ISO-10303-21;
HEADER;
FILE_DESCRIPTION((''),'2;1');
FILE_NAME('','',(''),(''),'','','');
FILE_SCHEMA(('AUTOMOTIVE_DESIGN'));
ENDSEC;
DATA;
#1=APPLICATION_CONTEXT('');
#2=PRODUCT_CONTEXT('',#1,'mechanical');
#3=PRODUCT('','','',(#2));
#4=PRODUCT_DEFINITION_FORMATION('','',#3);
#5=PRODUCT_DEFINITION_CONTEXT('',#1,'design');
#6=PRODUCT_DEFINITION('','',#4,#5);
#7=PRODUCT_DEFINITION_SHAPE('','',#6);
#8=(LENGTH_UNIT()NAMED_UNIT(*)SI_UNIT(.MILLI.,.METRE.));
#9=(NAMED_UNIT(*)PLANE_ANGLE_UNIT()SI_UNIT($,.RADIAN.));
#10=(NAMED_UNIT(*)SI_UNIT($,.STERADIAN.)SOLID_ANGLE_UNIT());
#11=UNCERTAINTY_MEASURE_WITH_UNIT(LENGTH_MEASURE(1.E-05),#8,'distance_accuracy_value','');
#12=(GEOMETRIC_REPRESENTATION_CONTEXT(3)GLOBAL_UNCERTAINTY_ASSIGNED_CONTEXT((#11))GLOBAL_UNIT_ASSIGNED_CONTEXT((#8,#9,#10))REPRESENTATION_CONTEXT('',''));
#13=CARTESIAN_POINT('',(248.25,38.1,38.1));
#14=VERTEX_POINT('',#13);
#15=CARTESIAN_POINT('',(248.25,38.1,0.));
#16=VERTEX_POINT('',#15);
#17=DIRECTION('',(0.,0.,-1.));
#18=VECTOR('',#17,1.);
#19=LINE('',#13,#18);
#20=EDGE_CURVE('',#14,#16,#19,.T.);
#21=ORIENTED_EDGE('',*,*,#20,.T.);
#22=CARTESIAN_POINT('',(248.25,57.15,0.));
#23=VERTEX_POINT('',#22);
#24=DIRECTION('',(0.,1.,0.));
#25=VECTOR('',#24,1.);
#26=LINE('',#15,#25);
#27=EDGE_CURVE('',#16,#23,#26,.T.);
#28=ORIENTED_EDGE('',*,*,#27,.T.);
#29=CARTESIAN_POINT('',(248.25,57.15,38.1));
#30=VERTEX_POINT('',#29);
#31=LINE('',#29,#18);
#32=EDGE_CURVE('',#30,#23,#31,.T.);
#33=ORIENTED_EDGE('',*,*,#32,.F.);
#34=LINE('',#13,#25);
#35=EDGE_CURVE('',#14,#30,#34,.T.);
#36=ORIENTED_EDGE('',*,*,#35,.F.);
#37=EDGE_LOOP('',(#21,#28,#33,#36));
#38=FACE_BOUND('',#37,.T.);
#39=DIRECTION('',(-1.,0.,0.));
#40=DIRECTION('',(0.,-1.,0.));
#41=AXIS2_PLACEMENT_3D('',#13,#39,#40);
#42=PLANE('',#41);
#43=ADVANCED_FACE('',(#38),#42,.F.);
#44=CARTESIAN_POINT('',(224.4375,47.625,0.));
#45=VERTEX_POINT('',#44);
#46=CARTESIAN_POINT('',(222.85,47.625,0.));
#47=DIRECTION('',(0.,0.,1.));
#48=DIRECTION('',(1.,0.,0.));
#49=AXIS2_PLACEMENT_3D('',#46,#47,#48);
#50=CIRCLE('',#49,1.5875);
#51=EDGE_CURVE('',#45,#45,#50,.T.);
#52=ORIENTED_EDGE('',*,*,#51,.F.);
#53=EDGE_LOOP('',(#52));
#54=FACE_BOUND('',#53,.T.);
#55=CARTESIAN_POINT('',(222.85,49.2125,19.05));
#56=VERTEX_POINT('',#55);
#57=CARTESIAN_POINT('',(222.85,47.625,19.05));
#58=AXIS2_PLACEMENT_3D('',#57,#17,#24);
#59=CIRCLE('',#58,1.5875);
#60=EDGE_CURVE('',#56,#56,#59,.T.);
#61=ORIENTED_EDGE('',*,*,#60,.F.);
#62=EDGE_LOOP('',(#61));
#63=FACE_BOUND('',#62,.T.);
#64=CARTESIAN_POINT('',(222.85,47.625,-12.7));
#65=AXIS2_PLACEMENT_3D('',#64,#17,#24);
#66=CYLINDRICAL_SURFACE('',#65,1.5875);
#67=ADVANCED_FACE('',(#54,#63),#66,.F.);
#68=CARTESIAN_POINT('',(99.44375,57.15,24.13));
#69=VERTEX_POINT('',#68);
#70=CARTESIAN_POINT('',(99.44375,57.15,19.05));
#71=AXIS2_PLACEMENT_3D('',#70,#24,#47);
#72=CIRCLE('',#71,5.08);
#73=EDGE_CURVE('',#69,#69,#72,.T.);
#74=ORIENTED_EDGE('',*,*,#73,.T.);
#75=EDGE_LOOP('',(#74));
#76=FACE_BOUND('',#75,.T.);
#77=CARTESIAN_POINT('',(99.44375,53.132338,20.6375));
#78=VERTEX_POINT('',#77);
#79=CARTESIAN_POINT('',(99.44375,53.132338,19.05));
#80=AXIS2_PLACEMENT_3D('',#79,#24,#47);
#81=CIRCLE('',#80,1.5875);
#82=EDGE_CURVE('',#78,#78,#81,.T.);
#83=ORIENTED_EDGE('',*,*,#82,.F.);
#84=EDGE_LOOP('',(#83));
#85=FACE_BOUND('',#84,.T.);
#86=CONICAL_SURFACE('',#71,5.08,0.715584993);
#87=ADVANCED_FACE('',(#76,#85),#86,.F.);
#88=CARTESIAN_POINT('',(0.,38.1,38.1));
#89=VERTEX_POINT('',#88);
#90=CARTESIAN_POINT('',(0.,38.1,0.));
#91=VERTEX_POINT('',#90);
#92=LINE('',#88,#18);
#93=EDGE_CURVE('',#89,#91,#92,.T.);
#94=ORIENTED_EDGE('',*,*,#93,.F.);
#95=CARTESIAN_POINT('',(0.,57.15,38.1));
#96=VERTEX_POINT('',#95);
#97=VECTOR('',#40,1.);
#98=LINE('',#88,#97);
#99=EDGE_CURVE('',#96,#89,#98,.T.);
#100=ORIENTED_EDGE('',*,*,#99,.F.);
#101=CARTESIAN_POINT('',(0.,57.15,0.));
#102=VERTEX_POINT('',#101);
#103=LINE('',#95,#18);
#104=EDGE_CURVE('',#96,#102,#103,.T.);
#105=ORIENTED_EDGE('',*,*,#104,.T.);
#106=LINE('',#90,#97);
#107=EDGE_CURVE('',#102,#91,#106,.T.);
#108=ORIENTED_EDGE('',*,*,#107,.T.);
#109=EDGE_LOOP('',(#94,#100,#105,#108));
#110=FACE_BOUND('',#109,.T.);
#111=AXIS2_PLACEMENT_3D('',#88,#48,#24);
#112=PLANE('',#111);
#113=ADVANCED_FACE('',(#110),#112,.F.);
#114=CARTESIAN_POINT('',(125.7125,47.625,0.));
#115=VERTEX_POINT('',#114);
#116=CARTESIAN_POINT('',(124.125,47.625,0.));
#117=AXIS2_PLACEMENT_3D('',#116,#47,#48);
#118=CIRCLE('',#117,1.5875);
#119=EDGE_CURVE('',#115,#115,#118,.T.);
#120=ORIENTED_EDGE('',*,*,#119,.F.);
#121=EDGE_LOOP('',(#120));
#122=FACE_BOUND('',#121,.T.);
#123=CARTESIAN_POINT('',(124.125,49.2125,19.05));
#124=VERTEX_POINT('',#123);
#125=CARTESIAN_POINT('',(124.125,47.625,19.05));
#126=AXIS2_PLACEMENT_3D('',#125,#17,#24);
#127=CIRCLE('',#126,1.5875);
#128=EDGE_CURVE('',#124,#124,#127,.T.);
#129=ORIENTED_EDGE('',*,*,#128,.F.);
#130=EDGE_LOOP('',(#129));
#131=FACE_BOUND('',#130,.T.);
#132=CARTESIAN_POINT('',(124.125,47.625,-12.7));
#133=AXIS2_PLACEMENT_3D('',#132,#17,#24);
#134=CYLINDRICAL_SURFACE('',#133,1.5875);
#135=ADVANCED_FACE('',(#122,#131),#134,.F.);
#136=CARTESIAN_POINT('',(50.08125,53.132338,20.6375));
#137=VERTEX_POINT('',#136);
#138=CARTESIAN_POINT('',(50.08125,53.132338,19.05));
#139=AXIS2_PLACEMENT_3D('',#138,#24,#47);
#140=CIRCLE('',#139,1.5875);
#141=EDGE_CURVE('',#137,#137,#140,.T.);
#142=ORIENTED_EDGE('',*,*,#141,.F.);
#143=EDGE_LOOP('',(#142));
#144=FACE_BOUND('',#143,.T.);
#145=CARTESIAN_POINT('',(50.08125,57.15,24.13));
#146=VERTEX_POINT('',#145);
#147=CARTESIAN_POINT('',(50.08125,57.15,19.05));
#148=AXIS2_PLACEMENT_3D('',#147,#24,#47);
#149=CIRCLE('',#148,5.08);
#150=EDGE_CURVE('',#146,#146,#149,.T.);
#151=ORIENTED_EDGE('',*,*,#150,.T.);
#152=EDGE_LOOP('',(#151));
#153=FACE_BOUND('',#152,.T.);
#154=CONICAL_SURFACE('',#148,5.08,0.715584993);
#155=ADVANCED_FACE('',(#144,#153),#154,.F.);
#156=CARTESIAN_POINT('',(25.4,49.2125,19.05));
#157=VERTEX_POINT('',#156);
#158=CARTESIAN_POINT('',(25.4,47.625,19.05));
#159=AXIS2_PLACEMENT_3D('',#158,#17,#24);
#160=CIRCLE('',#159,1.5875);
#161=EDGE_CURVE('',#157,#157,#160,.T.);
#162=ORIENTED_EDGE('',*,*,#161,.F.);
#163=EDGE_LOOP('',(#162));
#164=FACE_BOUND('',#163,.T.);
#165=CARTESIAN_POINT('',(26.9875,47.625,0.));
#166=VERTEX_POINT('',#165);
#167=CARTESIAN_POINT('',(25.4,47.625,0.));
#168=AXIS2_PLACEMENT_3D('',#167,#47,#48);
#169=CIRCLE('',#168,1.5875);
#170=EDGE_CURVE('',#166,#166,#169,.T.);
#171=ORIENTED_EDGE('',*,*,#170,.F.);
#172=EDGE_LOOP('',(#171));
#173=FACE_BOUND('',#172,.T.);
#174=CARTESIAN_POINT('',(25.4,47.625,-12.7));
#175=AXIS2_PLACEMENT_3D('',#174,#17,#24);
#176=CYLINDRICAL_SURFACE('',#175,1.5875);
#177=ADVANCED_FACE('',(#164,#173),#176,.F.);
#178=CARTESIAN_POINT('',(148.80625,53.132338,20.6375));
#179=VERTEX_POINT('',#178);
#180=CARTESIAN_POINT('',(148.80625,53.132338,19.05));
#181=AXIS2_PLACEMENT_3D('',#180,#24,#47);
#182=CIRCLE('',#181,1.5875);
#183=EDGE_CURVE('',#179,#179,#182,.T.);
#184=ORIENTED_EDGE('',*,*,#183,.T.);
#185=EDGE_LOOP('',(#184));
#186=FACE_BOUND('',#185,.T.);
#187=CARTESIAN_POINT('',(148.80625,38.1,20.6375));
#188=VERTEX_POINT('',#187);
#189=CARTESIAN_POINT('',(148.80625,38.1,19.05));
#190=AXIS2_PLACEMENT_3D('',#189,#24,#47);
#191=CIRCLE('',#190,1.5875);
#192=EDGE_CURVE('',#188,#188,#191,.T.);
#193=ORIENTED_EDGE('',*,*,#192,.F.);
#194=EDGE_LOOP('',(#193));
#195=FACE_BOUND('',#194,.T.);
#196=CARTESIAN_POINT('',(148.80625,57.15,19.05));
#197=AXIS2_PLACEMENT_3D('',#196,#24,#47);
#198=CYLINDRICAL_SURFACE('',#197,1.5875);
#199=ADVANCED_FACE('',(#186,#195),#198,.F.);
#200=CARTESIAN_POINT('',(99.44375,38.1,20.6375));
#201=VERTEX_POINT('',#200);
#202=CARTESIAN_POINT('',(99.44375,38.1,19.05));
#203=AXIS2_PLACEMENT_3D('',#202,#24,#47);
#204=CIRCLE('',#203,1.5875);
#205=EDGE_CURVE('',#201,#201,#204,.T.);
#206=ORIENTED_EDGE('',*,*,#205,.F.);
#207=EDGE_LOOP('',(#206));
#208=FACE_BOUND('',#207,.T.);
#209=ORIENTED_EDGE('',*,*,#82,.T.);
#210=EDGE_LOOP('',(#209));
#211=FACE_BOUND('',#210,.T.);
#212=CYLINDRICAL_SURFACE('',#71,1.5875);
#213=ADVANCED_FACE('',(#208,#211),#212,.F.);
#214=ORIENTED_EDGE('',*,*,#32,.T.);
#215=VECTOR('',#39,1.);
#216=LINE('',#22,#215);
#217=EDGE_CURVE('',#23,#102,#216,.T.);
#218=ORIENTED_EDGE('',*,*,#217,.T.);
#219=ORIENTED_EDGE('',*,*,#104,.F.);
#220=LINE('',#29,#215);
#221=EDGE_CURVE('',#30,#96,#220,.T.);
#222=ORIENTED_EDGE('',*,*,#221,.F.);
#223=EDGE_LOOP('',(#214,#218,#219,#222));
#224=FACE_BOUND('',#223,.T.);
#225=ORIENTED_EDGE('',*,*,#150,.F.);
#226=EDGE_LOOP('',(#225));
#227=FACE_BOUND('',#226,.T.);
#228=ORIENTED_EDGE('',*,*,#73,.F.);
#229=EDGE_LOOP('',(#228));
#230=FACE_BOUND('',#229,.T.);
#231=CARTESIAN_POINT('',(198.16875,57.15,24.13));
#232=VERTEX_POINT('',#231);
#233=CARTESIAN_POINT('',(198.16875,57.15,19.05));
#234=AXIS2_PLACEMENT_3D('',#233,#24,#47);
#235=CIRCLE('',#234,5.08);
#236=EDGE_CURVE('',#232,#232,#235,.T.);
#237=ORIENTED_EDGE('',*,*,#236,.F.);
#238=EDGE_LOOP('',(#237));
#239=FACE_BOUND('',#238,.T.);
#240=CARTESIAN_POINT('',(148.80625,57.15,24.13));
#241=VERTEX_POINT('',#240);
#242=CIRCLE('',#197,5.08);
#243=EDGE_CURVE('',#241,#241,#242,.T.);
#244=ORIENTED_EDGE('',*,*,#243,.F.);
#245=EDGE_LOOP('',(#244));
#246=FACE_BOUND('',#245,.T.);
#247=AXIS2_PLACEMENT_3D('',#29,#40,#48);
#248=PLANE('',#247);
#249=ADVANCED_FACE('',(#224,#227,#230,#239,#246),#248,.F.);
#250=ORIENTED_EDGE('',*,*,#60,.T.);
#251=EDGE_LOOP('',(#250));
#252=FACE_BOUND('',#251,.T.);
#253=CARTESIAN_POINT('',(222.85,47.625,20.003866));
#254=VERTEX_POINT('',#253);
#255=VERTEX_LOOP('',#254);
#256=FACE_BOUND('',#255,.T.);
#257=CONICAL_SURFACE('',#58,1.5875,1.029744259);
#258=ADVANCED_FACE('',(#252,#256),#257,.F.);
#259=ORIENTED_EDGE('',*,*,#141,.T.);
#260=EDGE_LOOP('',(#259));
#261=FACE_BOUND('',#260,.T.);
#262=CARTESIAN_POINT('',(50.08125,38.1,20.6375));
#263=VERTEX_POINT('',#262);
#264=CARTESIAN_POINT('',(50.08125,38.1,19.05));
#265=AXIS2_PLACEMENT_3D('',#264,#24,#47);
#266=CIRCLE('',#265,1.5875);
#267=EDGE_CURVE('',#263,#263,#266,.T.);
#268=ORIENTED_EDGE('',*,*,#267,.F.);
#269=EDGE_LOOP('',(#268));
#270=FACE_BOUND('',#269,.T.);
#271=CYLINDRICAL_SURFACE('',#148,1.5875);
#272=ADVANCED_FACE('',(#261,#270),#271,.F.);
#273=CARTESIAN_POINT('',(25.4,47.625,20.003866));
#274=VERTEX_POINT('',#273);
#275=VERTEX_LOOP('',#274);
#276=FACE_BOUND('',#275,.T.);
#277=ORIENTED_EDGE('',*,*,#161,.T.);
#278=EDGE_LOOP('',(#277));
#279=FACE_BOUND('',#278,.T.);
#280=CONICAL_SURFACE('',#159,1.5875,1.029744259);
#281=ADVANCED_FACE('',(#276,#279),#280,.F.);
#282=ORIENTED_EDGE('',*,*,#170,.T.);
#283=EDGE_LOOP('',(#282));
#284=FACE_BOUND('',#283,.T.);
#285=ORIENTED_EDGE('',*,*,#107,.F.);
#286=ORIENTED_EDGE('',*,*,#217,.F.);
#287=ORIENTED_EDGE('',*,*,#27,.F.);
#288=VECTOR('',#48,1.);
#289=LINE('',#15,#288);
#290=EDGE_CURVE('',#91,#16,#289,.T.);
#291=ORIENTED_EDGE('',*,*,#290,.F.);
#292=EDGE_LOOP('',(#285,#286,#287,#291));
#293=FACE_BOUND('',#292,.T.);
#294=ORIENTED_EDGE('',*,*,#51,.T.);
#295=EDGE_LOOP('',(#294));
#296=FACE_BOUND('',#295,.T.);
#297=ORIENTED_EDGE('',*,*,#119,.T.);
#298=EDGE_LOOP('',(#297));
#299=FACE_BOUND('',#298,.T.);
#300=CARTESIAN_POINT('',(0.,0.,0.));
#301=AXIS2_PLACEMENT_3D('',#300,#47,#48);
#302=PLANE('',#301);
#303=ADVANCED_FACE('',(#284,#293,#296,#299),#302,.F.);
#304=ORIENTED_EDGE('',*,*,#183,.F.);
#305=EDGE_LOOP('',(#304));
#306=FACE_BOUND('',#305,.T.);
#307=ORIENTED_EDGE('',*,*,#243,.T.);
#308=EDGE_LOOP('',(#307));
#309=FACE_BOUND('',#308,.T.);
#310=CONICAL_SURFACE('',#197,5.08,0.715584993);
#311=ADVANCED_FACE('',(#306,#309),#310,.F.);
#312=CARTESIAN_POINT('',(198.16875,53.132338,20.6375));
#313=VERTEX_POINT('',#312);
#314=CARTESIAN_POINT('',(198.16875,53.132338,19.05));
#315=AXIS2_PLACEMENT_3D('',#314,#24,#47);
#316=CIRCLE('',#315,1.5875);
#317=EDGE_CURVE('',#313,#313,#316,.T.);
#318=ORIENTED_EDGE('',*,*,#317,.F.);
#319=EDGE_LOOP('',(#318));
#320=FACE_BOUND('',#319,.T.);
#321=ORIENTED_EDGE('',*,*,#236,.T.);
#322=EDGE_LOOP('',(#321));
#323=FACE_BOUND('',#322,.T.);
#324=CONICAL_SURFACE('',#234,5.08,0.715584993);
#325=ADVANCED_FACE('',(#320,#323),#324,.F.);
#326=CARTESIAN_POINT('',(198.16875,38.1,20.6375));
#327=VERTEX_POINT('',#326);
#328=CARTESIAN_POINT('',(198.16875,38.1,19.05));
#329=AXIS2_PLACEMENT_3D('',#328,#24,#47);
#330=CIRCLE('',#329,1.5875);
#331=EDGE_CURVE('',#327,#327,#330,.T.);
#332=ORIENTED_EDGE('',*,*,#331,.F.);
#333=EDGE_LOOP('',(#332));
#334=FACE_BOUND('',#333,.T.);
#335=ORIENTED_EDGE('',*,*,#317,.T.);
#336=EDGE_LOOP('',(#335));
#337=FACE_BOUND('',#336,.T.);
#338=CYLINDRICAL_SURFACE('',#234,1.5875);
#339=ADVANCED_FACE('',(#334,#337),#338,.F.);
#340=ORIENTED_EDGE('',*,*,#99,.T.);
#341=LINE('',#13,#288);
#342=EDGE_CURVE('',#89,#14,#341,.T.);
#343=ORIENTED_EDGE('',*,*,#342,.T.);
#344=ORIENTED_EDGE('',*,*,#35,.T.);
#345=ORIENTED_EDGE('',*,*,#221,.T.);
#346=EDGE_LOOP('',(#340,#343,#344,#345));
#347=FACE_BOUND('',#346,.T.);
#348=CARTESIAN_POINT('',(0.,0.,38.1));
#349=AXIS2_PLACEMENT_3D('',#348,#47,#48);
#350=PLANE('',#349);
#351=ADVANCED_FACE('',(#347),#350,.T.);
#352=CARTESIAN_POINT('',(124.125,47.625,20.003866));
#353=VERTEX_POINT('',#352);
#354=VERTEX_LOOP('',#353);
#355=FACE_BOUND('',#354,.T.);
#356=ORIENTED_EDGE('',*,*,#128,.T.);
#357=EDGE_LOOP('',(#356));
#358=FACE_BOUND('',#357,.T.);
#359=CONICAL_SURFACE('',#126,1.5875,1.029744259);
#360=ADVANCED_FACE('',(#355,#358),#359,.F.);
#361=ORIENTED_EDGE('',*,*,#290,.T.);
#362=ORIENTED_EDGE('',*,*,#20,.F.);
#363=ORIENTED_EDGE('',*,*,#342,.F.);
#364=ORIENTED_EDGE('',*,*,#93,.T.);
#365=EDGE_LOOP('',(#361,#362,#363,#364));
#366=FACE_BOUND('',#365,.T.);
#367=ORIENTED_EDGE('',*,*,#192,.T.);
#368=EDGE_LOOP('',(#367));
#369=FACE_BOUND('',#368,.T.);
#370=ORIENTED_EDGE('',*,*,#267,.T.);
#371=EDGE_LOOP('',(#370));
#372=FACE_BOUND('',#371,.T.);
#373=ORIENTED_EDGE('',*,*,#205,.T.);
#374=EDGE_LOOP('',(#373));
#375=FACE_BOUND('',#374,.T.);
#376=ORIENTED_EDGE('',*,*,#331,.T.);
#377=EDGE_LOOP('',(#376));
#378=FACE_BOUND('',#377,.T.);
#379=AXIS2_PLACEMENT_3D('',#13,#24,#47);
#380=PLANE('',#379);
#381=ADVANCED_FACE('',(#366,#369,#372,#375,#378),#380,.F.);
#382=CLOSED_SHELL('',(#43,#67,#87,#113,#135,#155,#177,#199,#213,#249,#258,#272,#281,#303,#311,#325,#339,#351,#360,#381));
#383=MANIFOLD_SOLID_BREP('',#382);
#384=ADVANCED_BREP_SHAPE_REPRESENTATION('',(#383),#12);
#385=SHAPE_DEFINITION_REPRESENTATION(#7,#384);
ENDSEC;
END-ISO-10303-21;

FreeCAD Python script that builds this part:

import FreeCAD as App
import Part
import Sketcher
Q = App.Units.Quantity


def add_polygon(sketch, points):
    """Adds a closed chain of lines whose ends are joined by coincident constraints."""
    first, n = sketch.GeometryCount, len(points)
    for a, b in zip(points, points[1:] + points[:1]):
        sketch.addGeometry(Part.LineSegment(App.Vector(*a, 0), App.Vector(*b, 0)), False)
    for i in range(n):
        sketch.addConstraint(Sketcher.Constraint("Coincident", first + i, 2, first + (i + 1) % n, 1))

doc = App.newDocument("Part")
params = doc.addObject("Spreadsheet::Sheet", "Params")
for row, (alias, value) in enumerate([
    ("sketch1_height", "0.75 in"),
    ("pad1_length", "1.5 in"),
    ("sketch2_diameter", "0.125 in"),
    ("hole_diameter", "0.125 in"),
    ("hole_depth", "1.25 in"),
    ("hole_csink_diameter", "0.4 in"),
    ("sketch3_diameter", "0.125 in"),
    ("hole2_diameter", "0.125 in"),
    ("hole2_depth", "2.25 in"),
    ("hole2_csink_diameter", "0.4 in"),
], start=1):
    params.set(f"A{row}", alias)
    params.set(f"B{row}", "=" + value)
    params.setAlias(f"B{row}", alias)

body = doc.addObject("PartDesign::Body", "Body")

sketch1 = body.newObject("Sketcher::SketchObject", "Sketch")
sketch1.AttachmentSupport = (doc.getObject("XY_Plane"), [""])
sketch1.MapMode = "FlatFace"
add_polygon(sketch1, [(0, 57), (0, 38), (248, 38), (248, 57)])
sketch1.addConstraint([
    Sketcher.Constraint("Vertical", 0),
    Sketcher.Constraint("Horizontal", 1),
    Sketcher.Constraint("Vertical", 2),
    Sketcher.Constraint("Horizontal", 3),
    Sketcher.Constraint("PointOnObject", 0, 2, -2),
    Sketcher.Constraint("DistanceY", 0, 2, 0, 1, Q("0.75 in")),
    Sketcher.Constraint("DistanceY", -1, 1, 0, 2, Q("1.5 in")),
    Sketcher.Constraint("DistanceX", 1, 1, 1, 2, Q("248.25 mm")),
])
sketch1.setExpression("Constraints[9]", "Params.sketch1_height")
pad1 = body.newObject("PartDesign::Pad", "Pad")
pad1.Profile = sketch1
pad1.setExpression("Length", "Params.pad1_length")

sketch2 = body.newObject("Sketcher::SketchObject", "Sketch001")
sketch2.AttachmentSupport = (doc.getObject("XY_Plane"), [""])
sketch2.MapMode = "FlatFace"
sketch2.AttachmentOffset = App.Placement(App.Vector(0, 0, -0.5 * 25.4), App.Rotation())
sketch2.addGeometry([
    Part.Circle(App.Vector(222.8, -153.3, 0), App.Vector(0, 0, 1), 1.6),
    Part.Circle(App.Vector(222.8, 47.6, 0), App.Vector(0, 0, 1), 1.6),
    Part.Circle(App.Vector(25.4, 47.6, 0), App.Vector(0, 0, 1), 1.6),
    Part.Circle(App.Vector(124.1, 47.6, 0), App.Vector(0, 0, 1), 1.6),
    Part.Circle(App.Vector(124.1, -153.3, 0), App.Vector(0, 0, 1), 1.6),
    Part.Circle(App.Vector(25.4, -153.3, 0), App.Vector(0, 0, 1), 1.6),
], False)
sketch2.addConstraint([
    Sketcher.Constraint("Equal", 0, 1),
    Sketcher.Constraint("Equal", 1, 2),
    Sketcher.Constraint("Equal", 2, 3),
    Sketcher.Constraint("Equal", 3, 4),
    Sketcher.Constraint("Equal", 4, 5),
    Sketcher.Constraint("Horizontal", 1, 3, 2, 3),
    Sketcher.Constraint("Horizontal", 2, 3, 3, 3),
    Sketcher.Constraint("Horizontal", 0, 3, 4, 3),
    Sketcher.Constraint("Horizontal", 4, 3, 5, 3),
    Sketcher.Constraint("Vertical", 0, 3, 1, 3),
    Sketcher.Constraint("Vertical", 3, 3, 4, 3),
    Sketcher.Constraint("Vertical", 2, 3, 5, 3),
    Sketcher.Constraint("Diameter", 0, Q("0.125 in")),
    Sketcher.Constraint("DistanceX", -1, 1, 2, 3, Q("1 in")),
    Sketcher.Constraint("DistanceY", -1, 1, 1, 3, Q("1.875 in")),
    Sketcher.Constraint("DistanceX", -1, 1, 0, 3, Q("222.85 mm")),
    Sketcher.Constraint("DistanceX", -1, 1, 3, 3, Q("124.125 mm")),
    Sketcher.Constraint("DistanceY", 0, 3, -1, 1, Q("153.307047 mm")),
])
sketch2.setExpression("Constraints[12]", "Params.sketch2_diameter")
doc.recompute()
hole = body.newObject("PartDesign::Hole", "Hole")
hole.Profile = sketch2
hole.ThreadType = "None"
hole.setExpression("Diameter", "Params.hole_diameter")
hole.DepthType = "Dimension"
hole.setExpression("Depth", "Params.hole_depth")
hole.DrillPoint = "Angled"
hole.DrillPointAngle = 118
hole.HoleCutType = "Countersink"
hole.setExpression("HoleCutDiameter", "Params.hole_csink_diameter")
hole.HoleCutCountersinkAngle = 82
hole.Reversed = True

sketch3 = body.newObject("Sketcher::SketchObject", "Sketch002")
sketch3.AttachmentSupport = (doc.getObject("XZ_Plane"), [""])
sketch3.MapMode = "FlatFace"
sketch3.AttachmentOffset = App.Placement(App.Vector(0, 0, -2.25 * 25.4), App.Rotation())
sketch3.addGeometry([
    Part.Circle(App.Vector(99.4, 19.1, 0), App.Vector(0, 0, 1), 1.6),
    Part.Circle(App.Vector(198.2, 19.1, 0), App.Vector(0, 0, 1), 1.6),
    Part.Circle(App.Vector(148.8, 19.1, 0), App.Vector(0, 0, 1), 1.6),
    Part.Circle(App.Vector(50.1, 19.1, 0), App.Vector(0, 0, 1), 1.6),
], False)
sketch3.addConstraint([
    Sketcher.Constraint("Equal", 0, 1),
    Sketcher.Constraint("Equal", 1, 2),
    Sketcher.Constraint("Equal", 2, 3),
    Sketcher.Constraint("Horizontal", 0, 3, 1, 3),
    Sketcher.Constraint("Horizontal", 1, 3, 2, 3),
    Sketcher.Constraint("Horizontal", 2, 3, 3, 3),
    Sketcher.Constraint("Diameter", 0, Q("0.125 in")),
    Sketcher.Constraint("DistanceY", -1, 1, 0, 3, Q("0.75 in")),
    Sketcher.Constraint("DistanceX", 0, 3, 1, 3, Q("98.725 mm")),
    Sketcher.Constraint("DistanceX", 2, 3, 1, 3, Q("49.3625 mm")),
    Sketcher.Constraint("DistanceX", 3, 3, 0, 3, Q("49.3625 mm")),
    Sketcher.Constraint("DistanceX", -1, 1, 0, 3, Q("99.44375 mm")),
])
sketch3.setExpression("Constraints[6]", "Params.sketch3_diameter")
doc.recompute()
hole2 = body.newObject("PartDesign::Hole", "Hole001")
hole2.Profile = sketch3
hole2.ThreadType = "None"
hole2.setExpression("Diameter", "Params.hole2_diameter")
hole2.DepthType = "Dimension"
hole2.setExpression("Depth", "Params.hole2_depth")
hole2.DrillPoint = "Angled"
hole2.DrillPointAngle = 118
hole2.HoleCutType = "Countersink"
hole2.setExpression("HoleCutDiameter", "Params.hole2_csink_diameter")
hole2.HoleCutCountersinkAngle = 82
hole2.Reversed = True

doc.recompute()
